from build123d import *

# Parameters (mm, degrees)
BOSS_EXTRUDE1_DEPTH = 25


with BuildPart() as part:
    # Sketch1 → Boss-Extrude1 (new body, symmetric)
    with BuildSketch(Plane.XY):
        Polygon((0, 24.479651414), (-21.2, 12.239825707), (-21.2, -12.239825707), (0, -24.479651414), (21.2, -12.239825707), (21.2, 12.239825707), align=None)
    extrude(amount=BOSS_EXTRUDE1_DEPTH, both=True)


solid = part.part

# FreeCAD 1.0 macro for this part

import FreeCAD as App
import Part
import Sketcher
Q = App.Units.Quantity

doc = App.newDocument("Part")
body = doc.addObject("PartDesign::Body", "Body")

sketch1 = body.newObject("Sketcher::SketchObject", "Sketch")
sketch1.AttachmentSupport = (doc.getObject("XY_Plane"), [""])
sketch1.MapMode = "FlatFace"
sketch1.addGeometry(Part.LineSegment(App.Vector(0, 24, 0), App.Vector(-21, 12, 0)), False)
sketch1.addGeometry(Part.LineSegment(App.Vector(-21, 12, 0), App.Vector(-21, -12, 0)), False)
sketch1.addGeometry(Part.LineSegment(App.Vector(-21, -12, 0), App.Vector(0, -24, 0)), False)
sketch1.addGeometry(Part.LineSegment(App.Vector(0, -24, 0), App.Vector(21, -12, 0)), False)
sketch1.addGeometry(Part.LineSegment(App.Vector(21, -12, 0), App.Vector(21, 12, 0)), False)
sketch1.addGeometry(Part.LineSegment(App.Vector(21, 12, 0), App.Vector(0, 24, 0)), False)
sketch1.addConstraint(Sketcher.Constraint("Coincident", 0, 2, 1, 1))
sketch1.addConstraint(Sketcher.Constraint("Coincident", 1, 2, 2, 1))
sketch1.addConstraint(Sketcher.Constraint("Coincident", 2, 2, 3, 1))
sketch1.addConstraint(Sketcher.Constraint("Coincident", 3, 2, 4, 1))
sketch1.addConstraint(Sketcher.Constraint("Coincident", 4, 2, 5, 1))
sketch1.addConstraint(Sketcher.Constraint("Coincident", 5, 2, 0, 1))
sketch1.addConstraint(Sketcher.Constraint("Vertical", 1))
sketch1.addConstraint(Sketcher.Constraint("Vertical", 4))
sketch1.addConstraint(Sketcher.Constraint("Symmetric", 0, 2, 3, 2, -1, 1))
sketch1.addConstraint(Sketcher.Constraint("Symmetric", 2, 2, 5, 2, -1, 1))
sketch1.addConstraint(Sketcher.Constraint("PointOnObject", 2, 2, -2))
sketch1.addConstraint(Sketcher.Constraint("Parallel", 2, 5))
sketch1.addConstraint(Sketcher.Constraint("Horizontal", 1, 2, 3, 2))
sketch1.addConstraint(Sketcher.Constraint("Angle", 0, Q("-150 deg")))
sketch1.addConstraint(Sketcher.Constraint("DistanceX", 0, 2, -1, 1, Q("21.2 mm")))
sketch1.addConstraint(Sketcher.Constraint("DistanceY", 1, 2, 1, 1, Q("24.479651 mm")))
pad1 = body.newObject("PartDesign::Pad", "Pad")
pad1.Profile = sketch1
pad1.Length = 50
pad1.Midplane = True

doc.recompute()
